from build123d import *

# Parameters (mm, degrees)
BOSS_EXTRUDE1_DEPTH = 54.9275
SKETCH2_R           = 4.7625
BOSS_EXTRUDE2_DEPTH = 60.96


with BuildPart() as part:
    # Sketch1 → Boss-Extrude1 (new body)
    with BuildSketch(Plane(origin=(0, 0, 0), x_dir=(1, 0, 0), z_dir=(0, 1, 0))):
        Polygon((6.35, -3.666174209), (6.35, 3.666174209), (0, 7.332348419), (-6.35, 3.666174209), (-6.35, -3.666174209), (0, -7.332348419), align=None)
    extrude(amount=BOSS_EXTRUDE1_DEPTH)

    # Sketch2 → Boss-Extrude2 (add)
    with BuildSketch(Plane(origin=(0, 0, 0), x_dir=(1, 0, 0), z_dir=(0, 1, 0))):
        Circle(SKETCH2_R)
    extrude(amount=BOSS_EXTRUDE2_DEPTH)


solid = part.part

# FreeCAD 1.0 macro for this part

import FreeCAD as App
import Part
import Sketcher
Q = App.Units.Quantity


def add_polygon(sketch, points):
    """Adds a closed chain of lines whose ends are joined by coincident constraints."""
    first, n = sketch.GeometryCount, len(points)
    for a, b in zip(points, points[1:] + points[:1]):
        sketch.addGeometry(Part.LineSegment(App.Vector(*a, 0), App.Vector(*b, 0)), False)
    for i in range(n):
        sketch.addConstraint(Sketcher.Constraint("Coincident", first + i, 2, first + (i + 1) % n, 1))

doc = App.newDocument("Part")
body = doc.addObject("PartDesign::Body", "Body")

# Sketch on XZ plane
sketch1 = body.newObject("Sketcher::SketchObject", "Sketch")
sketch1.AttachmentSupport = (doc.getObject("XZ_Plane"), [""])
sketch1.MapMode = "FlatFace"
add_polygon(sketch1, [(6, 4), (6, -4), (0, -7), (-6, -4), (-6, 4), (0, 7)])  # lines 0-5
sketch1.addConstraint(Sketcher.Constraint("Vertical", 0))
sketch1.addConstraint(Sketcher.Constraint("Vertical", 3))
sketch1.addConstraint(Sketcher.Constraint("Symmetric", 0, 2, 3, 2, -1, 1))
sketch1.addConstraint(Sketcher.Constraint("Symmetric", 1, 2, 4, 2, -1, 1))
sketch1.addConstraint(Sketcher.Constraint("PointOnObject", 1, 2, -2))
sketch1.addConstraint(Sketcher.Constraint("Parallel", 2, 5))
sketch1.addConstraint(Sketcher.Constraint("Horizontal", 0, 2, 2, 2))
sketch1.addConstraint(Sketcher.Constraint("Angle", 1, Q("-150 deg")))
sketch1.addConstraint(Sketcher.Constraint("DistanceX", 2, 2, 0, 2, Q("0.5 in")))
sketch1.addConstraint(Sketcher.Constraint("DistanceY", 0, 2, 0, 1, 7.332348))
pad1 = body.newObject("PartDesign::Pad", "Pad")
pad1.Profile = sketch1
pad1.Length = Q("2.1625 in")
pad1.Reversed = True

# Sketch on XZ plane
sketch2 = body.newObject("Sketcher::SketchObject", "Sketch001")
sketch2.AttachmentSupport = (doc.getObject("XZ_Plane"), [""])
sketch2.MapMode = "FlatFace"
sketch2.addGeometry(Part.Circle(App.Vector(0, 0, 0), App.Vector(0, 0, 1), 4.8), False)
sketch2.addConstraint(Sketcher.Constraint("Coincident", 0, 3, -1, 1))
sketch2.addConstraint(Sketcher.Constraint("Diameter", 0, Q("0.375 in")))
pad2 = body.newObject("PartDesign::Pad", "Pad001")
pad2.Profile = sketch2
pad2.Length = Q("2.4 in")
pad2.Reversed = True

doc.recompute()
